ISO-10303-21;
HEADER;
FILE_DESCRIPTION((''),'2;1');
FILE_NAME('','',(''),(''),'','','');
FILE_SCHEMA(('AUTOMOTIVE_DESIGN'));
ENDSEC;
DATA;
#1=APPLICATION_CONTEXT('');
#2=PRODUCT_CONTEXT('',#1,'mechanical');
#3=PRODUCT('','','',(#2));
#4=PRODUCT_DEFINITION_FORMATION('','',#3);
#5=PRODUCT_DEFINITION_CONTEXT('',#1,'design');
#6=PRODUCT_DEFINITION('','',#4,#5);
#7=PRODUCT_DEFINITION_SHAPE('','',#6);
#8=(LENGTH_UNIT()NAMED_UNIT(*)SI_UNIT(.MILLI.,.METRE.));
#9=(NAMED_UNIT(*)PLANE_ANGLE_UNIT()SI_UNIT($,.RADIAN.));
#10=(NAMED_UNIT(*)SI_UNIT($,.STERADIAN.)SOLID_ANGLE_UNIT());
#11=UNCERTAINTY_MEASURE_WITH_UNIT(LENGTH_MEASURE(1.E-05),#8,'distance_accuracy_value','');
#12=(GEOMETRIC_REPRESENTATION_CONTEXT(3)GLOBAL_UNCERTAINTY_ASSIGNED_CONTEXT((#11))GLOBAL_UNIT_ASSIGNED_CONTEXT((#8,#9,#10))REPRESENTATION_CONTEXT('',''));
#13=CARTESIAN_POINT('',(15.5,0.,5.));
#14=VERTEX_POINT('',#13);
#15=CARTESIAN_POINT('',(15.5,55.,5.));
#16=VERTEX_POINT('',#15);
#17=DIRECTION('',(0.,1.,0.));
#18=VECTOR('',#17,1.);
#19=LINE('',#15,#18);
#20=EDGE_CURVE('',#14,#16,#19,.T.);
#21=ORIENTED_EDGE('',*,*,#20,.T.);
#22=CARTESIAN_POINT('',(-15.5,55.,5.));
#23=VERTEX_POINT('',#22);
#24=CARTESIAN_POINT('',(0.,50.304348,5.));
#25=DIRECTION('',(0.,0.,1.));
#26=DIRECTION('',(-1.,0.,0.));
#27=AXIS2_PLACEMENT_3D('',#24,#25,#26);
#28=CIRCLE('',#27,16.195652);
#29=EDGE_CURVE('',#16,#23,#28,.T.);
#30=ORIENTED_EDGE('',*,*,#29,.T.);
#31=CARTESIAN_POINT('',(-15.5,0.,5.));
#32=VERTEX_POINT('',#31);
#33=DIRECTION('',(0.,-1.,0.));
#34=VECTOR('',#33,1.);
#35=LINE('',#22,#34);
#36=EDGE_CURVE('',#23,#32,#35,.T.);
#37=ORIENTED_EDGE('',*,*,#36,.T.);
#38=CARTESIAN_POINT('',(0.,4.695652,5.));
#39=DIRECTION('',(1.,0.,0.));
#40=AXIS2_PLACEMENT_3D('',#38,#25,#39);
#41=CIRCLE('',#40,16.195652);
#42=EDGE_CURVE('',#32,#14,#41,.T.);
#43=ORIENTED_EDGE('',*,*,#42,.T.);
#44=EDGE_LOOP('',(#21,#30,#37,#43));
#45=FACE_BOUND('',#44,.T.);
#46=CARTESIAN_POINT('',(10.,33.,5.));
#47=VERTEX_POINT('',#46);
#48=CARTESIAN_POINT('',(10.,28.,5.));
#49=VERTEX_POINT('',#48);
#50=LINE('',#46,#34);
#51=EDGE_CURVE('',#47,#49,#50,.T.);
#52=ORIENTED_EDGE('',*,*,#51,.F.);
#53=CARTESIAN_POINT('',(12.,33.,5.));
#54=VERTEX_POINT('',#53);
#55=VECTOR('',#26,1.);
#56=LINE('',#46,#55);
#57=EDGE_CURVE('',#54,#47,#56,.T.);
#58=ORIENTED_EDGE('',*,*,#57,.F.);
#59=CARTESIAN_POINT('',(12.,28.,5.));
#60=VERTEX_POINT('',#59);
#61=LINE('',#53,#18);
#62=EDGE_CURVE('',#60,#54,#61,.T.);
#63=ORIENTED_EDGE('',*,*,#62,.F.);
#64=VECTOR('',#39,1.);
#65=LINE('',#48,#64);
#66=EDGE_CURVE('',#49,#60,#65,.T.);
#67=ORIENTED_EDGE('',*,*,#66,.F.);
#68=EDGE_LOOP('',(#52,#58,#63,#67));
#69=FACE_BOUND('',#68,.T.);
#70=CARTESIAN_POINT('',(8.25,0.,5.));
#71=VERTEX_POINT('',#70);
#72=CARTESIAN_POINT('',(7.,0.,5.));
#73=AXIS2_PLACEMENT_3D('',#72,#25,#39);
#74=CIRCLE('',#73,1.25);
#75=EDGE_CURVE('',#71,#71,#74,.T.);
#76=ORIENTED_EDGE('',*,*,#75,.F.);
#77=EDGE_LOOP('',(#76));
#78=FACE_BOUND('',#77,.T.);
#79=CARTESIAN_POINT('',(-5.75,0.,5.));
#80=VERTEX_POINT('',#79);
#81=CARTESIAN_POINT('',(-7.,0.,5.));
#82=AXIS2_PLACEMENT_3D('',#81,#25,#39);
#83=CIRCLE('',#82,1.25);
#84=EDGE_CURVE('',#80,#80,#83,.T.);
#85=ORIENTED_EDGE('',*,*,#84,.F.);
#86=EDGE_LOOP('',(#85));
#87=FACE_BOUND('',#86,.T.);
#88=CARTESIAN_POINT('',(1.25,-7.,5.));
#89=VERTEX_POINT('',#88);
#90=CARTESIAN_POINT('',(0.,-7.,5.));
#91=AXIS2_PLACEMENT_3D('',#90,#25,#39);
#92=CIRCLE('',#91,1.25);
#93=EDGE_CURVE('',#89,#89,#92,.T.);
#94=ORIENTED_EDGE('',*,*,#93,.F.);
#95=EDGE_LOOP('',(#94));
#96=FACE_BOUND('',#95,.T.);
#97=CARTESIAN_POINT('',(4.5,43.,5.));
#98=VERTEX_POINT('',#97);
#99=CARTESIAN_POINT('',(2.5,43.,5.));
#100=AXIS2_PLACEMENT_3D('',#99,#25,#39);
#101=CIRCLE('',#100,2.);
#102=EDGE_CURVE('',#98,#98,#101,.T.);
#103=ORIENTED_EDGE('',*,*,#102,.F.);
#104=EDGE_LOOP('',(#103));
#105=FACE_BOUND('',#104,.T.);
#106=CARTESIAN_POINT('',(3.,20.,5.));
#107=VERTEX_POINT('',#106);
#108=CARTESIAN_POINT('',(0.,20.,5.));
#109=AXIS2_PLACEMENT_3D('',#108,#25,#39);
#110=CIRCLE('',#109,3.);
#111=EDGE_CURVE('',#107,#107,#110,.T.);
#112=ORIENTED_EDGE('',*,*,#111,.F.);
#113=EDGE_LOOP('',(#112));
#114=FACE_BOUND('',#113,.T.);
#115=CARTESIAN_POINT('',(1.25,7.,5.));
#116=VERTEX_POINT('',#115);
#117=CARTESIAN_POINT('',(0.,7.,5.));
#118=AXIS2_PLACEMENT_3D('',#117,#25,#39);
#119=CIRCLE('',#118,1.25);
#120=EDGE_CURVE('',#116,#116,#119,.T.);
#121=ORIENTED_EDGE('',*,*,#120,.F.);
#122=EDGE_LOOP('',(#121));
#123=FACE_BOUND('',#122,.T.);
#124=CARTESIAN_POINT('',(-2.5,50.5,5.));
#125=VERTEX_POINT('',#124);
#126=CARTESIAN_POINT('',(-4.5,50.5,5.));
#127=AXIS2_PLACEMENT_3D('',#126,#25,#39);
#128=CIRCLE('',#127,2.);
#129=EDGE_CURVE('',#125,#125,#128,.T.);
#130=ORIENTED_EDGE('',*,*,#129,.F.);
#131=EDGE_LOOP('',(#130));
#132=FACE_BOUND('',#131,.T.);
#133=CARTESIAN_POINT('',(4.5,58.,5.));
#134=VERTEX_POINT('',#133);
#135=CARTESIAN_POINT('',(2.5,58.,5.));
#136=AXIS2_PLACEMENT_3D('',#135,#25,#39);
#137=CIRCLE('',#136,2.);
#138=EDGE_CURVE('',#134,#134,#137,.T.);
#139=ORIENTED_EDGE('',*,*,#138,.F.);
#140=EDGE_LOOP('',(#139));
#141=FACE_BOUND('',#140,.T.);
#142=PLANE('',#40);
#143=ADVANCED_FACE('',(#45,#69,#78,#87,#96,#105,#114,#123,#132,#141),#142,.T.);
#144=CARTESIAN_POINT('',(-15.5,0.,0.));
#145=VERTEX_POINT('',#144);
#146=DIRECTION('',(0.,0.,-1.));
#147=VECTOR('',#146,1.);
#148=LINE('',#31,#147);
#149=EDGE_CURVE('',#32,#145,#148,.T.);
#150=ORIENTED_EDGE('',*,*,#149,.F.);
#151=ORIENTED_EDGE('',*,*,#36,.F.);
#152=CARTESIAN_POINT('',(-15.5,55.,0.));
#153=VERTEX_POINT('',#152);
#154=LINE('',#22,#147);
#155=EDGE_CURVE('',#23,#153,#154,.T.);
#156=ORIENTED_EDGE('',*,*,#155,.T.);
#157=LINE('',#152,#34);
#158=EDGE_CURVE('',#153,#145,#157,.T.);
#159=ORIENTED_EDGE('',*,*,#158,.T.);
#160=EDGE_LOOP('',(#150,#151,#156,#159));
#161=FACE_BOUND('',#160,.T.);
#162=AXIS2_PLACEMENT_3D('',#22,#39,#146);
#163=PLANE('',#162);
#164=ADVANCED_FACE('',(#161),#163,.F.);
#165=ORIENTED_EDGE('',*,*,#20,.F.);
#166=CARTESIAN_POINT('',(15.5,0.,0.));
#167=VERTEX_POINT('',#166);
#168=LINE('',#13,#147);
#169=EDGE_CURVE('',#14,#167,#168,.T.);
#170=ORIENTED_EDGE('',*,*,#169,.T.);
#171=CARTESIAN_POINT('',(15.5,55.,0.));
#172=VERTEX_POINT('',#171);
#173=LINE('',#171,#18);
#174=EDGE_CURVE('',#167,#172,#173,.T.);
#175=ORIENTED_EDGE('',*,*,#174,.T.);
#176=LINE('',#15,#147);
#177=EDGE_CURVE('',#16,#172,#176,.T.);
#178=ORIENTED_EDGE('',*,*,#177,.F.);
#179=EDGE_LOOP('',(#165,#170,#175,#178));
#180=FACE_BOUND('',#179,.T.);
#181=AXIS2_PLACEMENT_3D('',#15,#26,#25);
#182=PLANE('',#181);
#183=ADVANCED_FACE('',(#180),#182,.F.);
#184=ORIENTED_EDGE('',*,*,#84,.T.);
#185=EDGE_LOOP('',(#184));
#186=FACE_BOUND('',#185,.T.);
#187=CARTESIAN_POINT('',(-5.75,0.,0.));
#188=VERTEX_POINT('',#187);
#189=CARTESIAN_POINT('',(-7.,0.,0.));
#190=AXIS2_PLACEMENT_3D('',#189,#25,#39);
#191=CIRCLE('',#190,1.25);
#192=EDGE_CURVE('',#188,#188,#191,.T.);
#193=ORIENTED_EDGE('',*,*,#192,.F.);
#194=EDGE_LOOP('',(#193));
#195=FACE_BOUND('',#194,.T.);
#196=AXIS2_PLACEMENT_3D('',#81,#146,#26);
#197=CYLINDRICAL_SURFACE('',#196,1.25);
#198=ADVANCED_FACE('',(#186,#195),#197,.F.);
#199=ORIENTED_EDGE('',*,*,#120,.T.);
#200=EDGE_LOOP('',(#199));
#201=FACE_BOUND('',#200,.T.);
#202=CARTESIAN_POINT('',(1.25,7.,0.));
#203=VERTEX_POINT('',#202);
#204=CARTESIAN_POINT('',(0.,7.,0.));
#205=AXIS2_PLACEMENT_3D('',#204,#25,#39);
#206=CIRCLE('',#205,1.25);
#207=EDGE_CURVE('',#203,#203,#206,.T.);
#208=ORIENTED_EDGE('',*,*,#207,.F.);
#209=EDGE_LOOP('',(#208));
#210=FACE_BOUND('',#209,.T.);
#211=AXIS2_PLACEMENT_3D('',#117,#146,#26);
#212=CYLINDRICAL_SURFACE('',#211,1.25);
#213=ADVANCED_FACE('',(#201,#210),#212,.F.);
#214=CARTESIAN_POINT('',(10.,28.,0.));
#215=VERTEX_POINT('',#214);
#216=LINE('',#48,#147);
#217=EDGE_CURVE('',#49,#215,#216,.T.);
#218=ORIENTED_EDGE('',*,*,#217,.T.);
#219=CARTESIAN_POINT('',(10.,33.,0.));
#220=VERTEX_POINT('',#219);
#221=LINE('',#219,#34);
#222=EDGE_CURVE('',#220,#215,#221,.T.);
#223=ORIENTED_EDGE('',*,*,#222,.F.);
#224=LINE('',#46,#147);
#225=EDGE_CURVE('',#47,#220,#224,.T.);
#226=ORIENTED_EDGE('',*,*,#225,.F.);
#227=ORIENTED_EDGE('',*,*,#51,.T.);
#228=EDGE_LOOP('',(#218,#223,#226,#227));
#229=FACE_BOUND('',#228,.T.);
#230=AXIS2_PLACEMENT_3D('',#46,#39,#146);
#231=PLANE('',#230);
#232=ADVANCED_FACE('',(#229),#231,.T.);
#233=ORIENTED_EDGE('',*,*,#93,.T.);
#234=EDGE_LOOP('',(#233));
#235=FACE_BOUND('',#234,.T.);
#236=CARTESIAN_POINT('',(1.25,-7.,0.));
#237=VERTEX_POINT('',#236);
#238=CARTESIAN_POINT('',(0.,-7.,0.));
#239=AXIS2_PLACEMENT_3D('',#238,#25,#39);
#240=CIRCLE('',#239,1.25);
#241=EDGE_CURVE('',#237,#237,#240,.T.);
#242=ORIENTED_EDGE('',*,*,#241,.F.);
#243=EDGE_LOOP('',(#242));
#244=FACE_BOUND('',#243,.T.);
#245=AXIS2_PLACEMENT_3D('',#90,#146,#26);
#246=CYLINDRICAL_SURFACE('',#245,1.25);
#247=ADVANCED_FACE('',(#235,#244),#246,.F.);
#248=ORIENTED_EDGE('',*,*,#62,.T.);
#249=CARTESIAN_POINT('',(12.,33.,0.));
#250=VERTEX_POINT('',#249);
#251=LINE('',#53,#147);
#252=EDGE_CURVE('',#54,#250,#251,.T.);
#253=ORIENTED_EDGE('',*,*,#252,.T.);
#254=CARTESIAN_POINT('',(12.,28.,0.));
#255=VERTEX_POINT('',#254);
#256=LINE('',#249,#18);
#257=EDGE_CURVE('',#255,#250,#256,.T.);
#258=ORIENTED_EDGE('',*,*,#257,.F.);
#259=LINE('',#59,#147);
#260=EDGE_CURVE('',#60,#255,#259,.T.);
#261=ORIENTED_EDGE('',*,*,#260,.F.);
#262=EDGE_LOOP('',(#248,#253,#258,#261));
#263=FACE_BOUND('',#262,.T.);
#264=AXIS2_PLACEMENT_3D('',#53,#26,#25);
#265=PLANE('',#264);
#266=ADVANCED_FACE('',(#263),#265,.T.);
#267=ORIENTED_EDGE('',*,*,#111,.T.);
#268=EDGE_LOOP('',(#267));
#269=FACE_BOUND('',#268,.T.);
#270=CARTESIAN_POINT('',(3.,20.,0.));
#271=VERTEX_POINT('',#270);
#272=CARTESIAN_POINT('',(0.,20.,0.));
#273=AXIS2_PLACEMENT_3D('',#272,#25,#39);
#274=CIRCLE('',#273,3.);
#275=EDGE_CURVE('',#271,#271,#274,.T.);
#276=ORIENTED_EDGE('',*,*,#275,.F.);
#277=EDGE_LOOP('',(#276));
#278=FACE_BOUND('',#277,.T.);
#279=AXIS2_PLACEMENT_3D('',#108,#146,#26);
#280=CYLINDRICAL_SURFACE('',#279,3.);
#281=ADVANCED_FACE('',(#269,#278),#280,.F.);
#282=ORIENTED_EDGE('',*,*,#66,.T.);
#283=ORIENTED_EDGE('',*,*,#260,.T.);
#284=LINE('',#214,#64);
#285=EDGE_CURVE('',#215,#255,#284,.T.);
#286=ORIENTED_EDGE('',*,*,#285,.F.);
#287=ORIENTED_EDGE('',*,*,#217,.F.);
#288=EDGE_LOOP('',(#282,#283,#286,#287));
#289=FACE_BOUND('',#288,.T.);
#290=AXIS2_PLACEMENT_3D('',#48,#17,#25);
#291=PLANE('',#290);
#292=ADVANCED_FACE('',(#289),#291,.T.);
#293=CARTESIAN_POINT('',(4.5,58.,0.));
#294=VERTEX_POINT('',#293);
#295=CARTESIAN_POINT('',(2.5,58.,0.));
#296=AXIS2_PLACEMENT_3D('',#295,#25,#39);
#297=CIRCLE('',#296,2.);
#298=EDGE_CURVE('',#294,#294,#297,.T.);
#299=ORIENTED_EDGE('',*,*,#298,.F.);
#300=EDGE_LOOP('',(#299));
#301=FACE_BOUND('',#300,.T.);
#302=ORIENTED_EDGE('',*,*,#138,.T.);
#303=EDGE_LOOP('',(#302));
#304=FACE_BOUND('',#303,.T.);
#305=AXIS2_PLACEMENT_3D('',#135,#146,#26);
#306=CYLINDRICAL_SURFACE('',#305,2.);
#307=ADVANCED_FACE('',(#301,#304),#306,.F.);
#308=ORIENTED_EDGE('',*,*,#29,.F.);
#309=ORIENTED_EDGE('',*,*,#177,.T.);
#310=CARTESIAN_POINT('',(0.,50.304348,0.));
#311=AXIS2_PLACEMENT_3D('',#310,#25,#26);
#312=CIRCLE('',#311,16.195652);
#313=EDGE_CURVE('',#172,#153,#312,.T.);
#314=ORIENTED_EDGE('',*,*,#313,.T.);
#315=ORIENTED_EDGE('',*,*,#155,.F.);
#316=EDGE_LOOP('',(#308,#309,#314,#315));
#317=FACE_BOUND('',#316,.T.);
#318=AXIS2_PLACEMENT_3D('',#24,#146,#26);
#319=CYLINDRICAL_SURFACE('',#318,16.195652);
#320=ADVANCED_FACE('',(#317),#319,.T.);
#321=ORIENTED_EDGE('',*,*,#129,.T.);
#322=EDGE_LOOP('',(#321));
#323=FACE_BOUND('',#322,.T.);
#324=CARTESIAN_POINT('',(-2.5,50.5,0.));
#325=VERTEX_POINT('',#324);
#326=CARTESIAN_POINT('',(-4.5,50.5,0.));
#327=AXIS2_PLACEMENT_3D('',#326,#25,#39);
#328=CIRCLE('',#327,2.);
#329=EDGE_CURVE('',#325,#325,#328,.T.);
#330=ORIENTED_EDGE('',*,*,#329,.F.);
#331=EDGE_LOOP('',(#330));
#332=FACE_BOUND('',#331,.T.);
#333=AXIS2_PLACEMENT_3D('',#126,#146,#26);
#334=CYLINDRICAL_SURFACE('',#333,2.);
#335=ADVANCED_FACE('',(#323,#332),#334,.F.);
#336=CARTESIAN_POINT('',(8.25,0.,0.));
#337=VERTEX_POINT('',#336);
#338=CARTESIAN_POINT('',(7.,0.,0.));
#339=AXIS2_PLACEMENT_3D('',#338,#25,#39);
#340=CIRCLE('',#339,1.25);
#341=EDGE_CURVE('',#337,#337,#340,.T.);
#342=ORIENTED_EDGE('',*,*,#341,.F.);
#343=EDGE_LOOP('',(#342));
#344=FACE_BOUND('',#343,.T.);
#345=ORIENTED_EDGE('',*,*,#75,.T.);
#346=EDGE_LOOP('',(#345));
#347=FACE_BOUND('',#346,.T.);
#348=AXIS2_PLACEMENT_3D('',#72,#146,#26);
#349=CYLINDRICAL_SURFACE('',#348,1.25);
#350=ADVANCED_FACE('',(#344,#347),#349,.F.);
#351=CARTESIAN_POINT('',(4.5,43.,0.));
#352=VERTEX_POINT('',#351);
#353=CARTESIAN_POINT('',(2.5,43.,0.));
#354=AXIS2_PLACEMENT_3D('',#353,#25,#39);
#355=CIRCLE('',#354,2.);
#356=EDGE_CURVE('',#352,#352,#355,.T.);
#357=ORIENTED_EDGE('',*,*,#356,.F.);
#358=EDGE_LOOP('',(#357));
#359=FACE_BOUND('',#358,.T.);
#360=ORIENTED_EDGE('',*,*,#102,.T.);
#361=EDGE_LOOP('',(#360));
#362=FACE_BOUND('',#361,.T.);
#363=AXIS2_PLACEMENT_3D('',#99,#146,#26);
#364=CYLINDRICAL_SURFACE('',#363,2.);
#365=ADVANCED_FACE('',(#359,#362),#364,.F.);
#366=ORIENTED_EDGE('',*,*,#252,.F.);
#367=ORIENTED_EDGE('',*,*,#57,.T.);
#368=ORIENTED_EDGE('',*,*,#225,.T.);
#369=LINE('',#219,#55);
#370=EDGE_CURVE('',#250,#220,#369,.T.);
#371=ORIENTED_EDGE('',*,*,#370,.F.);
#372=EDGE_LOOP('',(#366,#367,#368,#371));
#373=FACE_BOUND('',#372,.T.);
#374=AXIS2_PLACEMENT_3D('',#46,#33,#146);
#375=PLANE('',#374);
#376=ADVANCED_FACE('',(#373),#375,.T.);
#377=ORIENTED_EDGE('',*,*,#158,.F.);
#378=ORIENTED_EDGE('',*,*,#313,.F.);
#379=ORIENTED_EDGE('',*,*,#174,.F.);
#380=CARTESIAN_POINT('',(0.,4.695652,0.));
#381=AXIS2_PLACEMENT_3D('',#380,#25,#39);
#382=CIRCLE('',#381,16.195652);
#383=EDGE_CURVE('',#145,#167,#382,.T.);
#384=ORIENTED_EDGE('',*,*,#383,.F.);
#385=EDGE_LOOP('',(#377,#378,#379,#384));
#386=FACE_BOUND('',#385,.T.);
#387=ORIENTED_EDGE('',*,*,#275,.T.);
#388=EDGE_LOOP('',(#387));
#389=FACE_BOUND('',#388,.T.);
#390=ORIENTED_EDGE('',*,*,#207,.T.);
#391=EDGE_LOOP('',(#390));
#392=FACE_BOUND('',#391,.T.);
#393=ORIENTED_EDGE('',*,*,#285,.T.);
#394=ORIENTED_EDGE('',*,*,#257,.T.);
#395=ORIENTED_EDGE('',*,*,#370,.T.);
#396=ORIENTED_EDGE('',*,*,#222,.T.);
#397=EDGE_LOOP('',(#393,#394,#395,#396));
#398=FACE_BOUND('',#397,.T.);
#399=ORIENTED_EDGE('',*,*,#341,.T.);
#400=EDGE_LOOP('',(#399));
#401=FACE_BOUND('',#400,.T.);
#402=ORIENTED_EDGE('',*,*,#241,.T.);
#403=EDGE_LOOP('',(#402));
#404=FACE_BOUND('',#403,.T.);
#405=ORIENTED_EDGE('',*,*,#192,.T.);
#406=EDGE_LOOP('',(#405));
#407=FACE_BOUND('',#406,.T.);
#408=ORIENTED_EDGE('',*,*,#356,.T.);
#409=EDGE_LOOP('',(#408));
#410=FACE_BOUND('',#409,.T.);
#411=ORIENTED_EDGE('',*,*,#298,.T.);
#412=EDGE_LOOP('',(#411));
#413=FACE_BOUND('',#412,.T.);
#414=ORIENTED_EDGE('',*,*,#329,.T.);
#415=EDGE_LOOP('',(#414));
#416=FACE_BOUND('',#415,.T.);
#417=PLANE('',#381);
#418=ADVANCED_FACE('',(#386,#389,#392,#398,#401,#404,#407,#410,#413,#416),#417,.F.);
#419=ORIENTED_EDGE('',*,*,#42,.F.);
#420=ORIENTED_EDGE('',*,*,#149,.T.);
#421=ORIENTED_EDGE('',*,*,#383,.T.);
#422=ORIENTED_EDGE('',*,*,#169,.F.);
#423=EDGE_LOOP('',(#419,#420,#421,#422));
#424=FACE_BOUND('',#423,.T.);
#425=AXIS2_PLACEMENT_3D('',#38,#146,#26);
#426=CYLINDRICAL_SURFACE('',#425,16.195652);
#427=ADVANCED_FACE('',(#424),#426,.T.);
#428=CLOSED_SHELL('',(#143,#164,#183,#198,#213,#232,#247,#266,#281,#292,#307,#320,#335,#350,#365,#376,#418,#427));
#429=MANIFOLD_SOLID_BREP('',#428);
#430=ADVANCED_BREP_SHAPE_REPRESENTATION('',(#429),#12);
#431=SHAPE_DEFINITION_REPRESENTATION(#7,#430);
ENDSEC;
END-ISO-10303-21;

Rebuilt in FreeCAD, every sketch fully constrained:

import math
import FreeCAD as App
import Part
import Sketcher
from FreeCAD import Vector
Q = App.Units.Quantity


def add_polygon(sketch, points):
    """Adds a closed chain of lines whose ends are joined by coincident constraints."""
    first, n = sketch.GeometryCount, len(points)
    for a, b in zip(points, points[1:] + points[:1]):
        sketch.addGeometry(Part.LineSegment(App.Vector(*a, 0), App.Vector(*b, 0)), False)
    for i in range(n):
        sketch.addConstraint(Sketcher.Constraint("Coincident", first + i, 2, first + (i + 1) % n, 1))

doc = App.newDocument("Part")
body = doc.addObject("PartDesign::Body", "Body")

sketch1 = body.newObject("Sketcher::SketchObject", "Sketch")
sketch1.AttachmentSupport = (doc.getObject("XY_Plane"), [""])
sketch1.MapMode = "FlatFace"
sketch1.addGeometry(Part.LineSegment(Vector(-15.5, 55, 0), Vector(-15.5, 0, 0)), False)
sketch1.addGeometry(Part.ArcOfCircle(Part.Circle(Vector(0, 4.695652, 0), Vector(0, 0, 1), 16.195652), math.radians(-163.146062), math.radians(-16.853938)), False)
sketch1.addGeometry(Part.LineSegment(Vector(15.5, 0, 0), Vector(15.5, 55, 0)), False)
sketch1.addGeometry(Part.ArcOfCircle(Part.Circle(Vector(0, 50.304348, 0), Vector(0, 0, 1), 16.195652), math.radians(16.853938), math.radians(163.146062)), False)
sketch1.addGeometry(Part.Circle(Vector(-7, 0, 0), Vector(0, 0, 1), 1.25), False)
sketch1.addGeometry(Part.Circle(Vector(0, -7, 0), Vector(0, 0, 1), 1.25), False)
sketch1.addGeometry(Part.Circle(Vector(0, 7, 0), Vector(0, 0, 1), 1.25), False)
sketch1.addGeometry(Part.Circle(Vector(0, 20, 0), Vector(0, 0, 1), 3), False)
sketch1.addGeometry(Part.Circle(Vector(7, 0, 0), Vector(0, 0, 1), 1.25), False)
sketch1.addGeometry(Part.Circle(Vector(-4.5, 50.5, 0), Vector(0, 0, 1), 2), False)
add_polygon(sketch1, [(12, 28), (10, 28), (10, 33), (12, 33)])
sketch1.addGeometry(Part.Circle(Vector(2.5, 43, 0), Vector(0, 0, 1), 2), False)
sketch1.addGeometry(Part.Circle(Vector(2.5, 58, 0), Vector(0, 0, 1), 2), False)
sketch1.addConstraint(Sketcher.Constraint("Coincident", 0, 2, 1, 1))
sketch1.addConstraint(Sketcher.Constraint("Coincident", 1, 2, 2, 1))
sketch1.addConstraint(Sketcher.Constraint("Coincident", 2, 2, 3, 1))
sketch1.addConstraint(Sketcher.Constraint("Coincident", 3, 2, 0, 1))
sketch1.addConstraint(Sketcher.Constraint("Vertical", 0))
sketch1.addConstraint(Sketcher.Constraint("Vertical", 2))
sketch1.addConstraint(Sketcher.Constraint("Horizontal", 10))
sketch1.addConstraint(Sketcher.Constraint("Vertical", 11))
sketch1.addConstraint(Sketcher.Constraint("Horizontal", 12))
sketch1.addConstraint(Sketcher.Constraint("Vertical", 13))
sketch1.addConstraint(Sketcher.Constraint("Equal", 1, 3))
sketch1.addConstraint(Sketcher.Constraint("Equal", 4, 5))
sketch1.addConstraint(Sketcher.Constraint("Equal", 5, 6))
sketch1.addConstraint(Sketcher.Constraint("Equal", 6, 8))
sketch1.addConstraint(Sketcher.Constraint("Equal", 9, 14))
sketch1.addConstraint(Sketcher.Constraint("Equal", 14, 15))
sketch1.addConstraint(Sketcher.Constraint("Symmetric", 5, 3, 6, 3, -1, 1))
sketch1.addConstraint(Sketcher.Constraint("Symmetric", 4, 3, 8, 3, -1, 1))
sketch1.addConstraint(Sketcher.Constraint("Symmetric", 0, 2, 1, 2, -1, 1))
sketch1.addConstraint(Sketcher.Constraint("PointOnObject", 1, 3, -2))
sketch1.addConstraint(Sketcher.Constraint("PointOnObject", 3, 3, -2))
sketch1.addConstraint(Sketcher.Constraint("PointOnObject", 4, 3, -1))
sketch1.addConstraint(Sketcher.Constraint("PointOnObject", 5, 3, -2))
sketch1.addConstraint(Sketcher.Constraint("PointOnObject", 7, 3, -2))
sketch1.addConstraint(Sketcher.Constraint("Vertical", 14, 3, 15, 3))
sketch1.addConstraint(Sketcher.Constraint("Diameter", 7, Q("6 mm")))
sketch1.addConstraint(Sketcher.Constraint("Diameter", 9, Q("4 mm")))
sketch1.addConstraint(Sketcher.Constraint("Diameter", 4, Q("2.5 mm")))
sketch1.addConstraint(Sketcher.Constraint("DistanceX", 10, 2, 10, 1, Q("2 mm")))
sketch1.addConstraint(Sketcher.Constraint("DistanceY", 0, 2, 0, 1, Q("55 mm")))
sketch1.addConstraint(Sketcher.Constraint("DistanceY", 11, 1, 11, 2, Q("5 mm")))
sketch1.addConstraint(Sketcher.Constraint("DistanceX", 4, 3, -1, 1, Q("7 mm")))
sketch1.addConstraint(Sketcher.Constraint("DistanceY", 5, 3, -1, 1, Q("7 mm")))
sketch1.addConstraint(Sketcher.Constraint("DistanceY", -1, 1, 7, 3, Q("20 mm")))
sketch1.addConstraint(Sketcher.Constraint("DistanceY", -1, 1, 14, 3, Q("43 mm")))
sketch1.addConstraint(Sketcher.Constraint("DistanceY", -1, 1, 15, 3, Q("58 mm")))
sketch1.addConstraint(Sketcher.Constraint("DistanceX", -1, 1, 10, 2, Q("10 mm")))
sketch1.addConstraint(Sketcher.Constraint("DistanceY", -1, 1, 10, 2, Q("28 mm")))
sketch1.addConstraint(Sketcher.Constraint("DistanceX", 9, 3, 14, 3, Q("7 mm")))
sketch1.addConstraint(Sketcher.Constraint("DistanceX", 15, 3, 2, 2, Q("13 mm")))
sketch1.addConstraint(Sketcher.Constraint("DistanceX", 3, 2, 9, 3, Q("11 mm")))
sketch1.addConstraint(Sketcher.Constraint("DistanceY", -1, 1, 9, 3, Q("50.5 mm")))
sketch1.addConstraint(Sketcher.Constraint("Radius", 1, Q("16.195652 mm")))
pad1 = body.newObject("PartDesign::Pad", "Pad")
pad1.Profile = sketch1
pad1.Length = 5

doc.recompute()
